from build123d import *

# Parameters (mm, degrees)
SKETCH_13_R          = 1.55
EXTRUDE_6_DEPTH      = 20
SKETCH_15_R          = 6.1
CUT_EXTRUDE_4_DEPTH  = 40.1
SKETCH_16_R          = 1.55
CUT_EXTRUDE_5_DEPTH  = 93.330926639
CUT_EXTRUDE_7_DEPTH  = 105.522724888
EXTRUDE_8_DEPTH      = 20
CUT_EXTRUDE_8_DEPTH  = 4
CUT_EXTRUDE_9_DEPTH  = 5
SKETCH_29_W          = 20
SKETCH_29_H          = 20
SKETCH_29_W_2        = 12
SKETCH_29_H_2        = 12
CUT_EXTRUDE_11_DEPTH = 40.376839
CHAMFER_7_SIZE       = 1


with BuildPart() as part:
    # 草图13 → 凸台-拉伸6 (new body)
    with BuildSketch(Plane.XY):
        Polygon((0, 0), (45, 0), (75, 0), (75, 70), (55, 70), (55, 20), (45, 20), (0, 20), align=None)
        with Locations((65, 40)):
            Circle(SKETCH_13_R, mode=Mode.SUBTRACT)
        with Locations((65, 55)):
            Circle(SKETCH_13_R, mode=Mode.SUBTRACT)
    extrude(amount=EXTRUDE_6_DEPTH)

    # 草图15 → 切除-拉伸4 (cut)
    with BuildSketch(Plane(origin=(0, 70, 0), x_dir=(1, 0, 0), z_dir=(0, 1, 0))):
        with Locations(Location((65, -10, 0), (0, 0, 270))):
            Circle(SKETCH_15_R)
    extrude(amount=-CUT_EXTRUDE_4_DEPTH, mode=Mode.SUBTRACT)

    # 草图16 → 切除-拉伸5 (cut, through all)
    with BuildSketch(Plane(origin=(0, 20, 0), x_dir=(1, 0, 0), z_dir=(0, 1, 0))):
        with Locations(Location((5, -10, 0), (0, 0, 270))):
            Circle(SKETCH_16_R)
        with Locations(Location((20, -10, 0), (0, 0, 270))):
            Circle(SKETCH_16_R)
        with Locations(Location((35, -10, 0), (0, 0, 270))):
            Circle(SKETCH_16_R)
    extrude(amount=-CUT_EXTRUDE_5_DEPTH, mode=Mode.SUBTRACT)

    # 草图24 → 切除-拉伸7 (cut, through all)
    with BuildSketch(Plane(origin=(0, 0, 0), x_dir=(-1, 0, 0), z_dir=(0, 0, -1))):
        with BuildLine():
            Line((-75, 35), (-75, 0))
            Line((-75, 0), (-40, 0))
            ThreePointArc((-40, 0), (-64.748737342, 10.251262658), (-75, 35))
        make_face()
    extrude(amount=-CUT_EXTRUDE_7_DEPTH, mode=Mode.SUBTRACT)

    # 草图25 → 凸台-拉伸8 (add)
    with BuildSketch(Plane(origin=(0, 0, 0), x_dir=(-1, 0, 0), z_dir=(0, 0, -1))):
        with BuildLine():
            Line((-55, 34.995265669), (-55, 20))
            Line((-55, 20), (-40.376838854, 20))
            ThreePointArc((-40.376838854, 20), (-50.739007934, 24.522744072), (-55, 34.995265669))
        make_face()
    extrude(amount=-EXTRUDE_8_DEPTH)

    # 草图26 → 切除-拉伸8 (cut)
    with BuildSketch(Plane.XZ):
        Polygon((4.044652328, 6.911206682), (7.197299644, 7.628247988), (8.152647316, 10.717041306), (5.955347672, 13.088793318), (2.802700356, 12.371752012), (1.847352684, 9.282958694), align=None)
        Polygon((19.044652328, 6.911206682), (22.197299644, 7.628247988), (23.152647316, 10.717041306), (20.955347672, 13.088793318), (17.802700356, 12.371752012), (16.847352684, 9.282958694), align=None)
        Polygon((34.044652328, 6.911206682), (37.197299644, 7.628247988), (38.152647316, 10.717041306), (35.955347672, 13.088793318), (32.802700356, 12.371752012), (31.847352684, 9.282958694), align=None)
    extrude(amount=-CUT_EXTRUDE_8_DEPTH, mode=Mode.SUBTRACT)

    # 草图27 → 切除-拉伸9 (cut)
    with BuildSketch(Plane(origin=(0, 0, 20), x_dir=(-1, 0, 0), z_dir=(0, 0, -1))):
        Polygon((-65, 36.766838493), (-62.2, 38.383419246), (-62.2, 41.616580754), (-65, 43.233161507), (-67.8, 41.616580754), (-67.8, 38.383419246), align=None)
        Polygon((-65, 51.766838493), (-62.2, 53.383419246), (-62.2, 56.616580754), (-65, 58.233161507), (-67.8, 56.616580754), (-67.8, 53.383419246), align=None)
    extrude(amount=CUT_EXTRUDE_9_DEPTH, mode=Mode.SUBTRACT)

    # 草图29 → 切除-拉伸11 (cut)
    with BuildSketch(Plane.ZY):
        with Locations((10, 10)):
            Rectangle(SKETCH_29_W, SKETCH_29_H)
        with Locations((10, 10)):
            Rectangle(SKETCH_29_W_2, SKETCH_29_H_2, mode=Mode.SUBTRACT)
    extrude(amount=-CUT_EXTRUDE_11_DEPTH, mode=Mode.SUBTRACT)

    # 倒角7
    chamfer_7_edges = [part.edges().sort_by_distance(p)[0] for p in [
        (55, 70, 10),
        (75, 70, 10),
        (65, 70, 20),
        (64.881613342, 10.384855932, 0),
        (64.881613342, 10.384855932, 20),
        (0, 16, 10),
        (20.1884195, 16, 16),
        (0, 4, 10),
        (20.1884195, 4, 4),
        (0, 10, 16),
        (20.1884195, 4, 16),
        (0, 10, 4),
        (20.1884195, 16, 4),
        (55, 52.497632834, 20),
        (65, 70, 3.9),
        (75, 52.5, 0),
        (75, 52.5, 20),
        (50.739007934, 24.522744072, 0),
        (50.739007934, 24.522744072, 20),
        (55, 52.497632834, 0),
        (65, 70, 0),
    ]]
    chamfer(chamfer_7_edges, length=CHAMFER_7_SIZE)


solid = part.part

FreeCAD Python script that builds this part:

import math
import FreeCAD as App
import Part
import Sketcher
Q = App.Units.Quantity


def edges_at(feature, points):
    """Names of the edges that pass closest to the given points."""
    edges = feature.Shape.Edges
    near = lambda p: min(range(len(edges)), key=lambda i: edges[i].distToShape(Part.Vertex(*p))[0])
    return sorted({f"Edge{near(p) + 1}" for p in points})


def add_polygon(sketch, points):
    """Adds a closed chain of lines whose ends are joined by coincident constraints."""
    first, n = sketch.GeometryCount, len(points)
    for a, b in zip(points, points[1:] + points[:1]):
        sketch.addGeometry(Part.LineSegment(App.Vector(*a, 0), App.Vector(*b, 0)), False)
    for i in range(n):
        sketch.addConstraint(Sketcher.Constraint("Coincident", first + i, 2, first + (i + 1) % n, 1))

doc = App.newDocument("Part")
body = doc.addObject("PartDesign::Body", "Body")

# Sketch on XY plane
sketch1 = body.newObject("Sketcher::SketchObject", "Sketch")
sketch1.AttachmentSupport = (doc.getObject("XY_Plane"), [""])
sketch1.MapMode = "FlatFace"
add_polygon(sketch1, [(0, 0), (75, 0), (75, 70), (55, 70), (55, 20), (0, 20)])  # lines 0-5
sketch1.addGeometry(Part.Circle(App.Vector(65, 40, 0), App.Vector(0, 0, 1), 1.6), False)  # 6
sketch1.addGeometry(Part.Circle(App.Vector(65, 55, 0), App.Vector(0, 0, 1), 1.6), False)  # 7
sketch1.addConstraint([
    Sketcher.Constraint("Horizontal", 0),
    Sketcher.Constraint("Vertical", 1),
    Sketcher.Constraint("Horizontal", 2),
    Sketcher.Constraint("Vertical", 3),
    Sketcher.Constraint("Horizontal", 4),
    Sketcher.Constraint("Vertical", 5),
    Sketcher.Constraint("Coincident", 5, 2, -1, 1),
    Sketcher.Constraint("Equal", 6, 7),
    Sketcher.Constraint("Vertical", 6, 3, 7, 3),
    Sketcher.Constraint("Equal", 2, 5),
    Sketcher.Constraint("Diameter", 6, Q("3.1 mm")),
    Sketcher.Constraint("DistanceX", 0, 1, 0, 2, Q("75 mm")),
    Sketcher.Constraint("DistanceX", 2, 2, 2, 1, Q("20 mm")),
    Sketcher.Constraint("DistanceY", 1, 1, 1, 2, Q("70 mm")),
    Sketcher.Constraint("DistanceX", -1, 1, 6, 3, Q("65 mm")),
    Sketcher.Constraint("DistanceY", -1, 1, 6, 3, Q("40 mm")),
    Sketcher.Constraint("DistanceY", -1, 1, 7, 3, Q("55 mm")),
])
pad1 = body.newObject("PartDesign::Pad", "Pad")
pad1.Profile = sketch1
pad1.Length = 20

# Sketch on XZ plane
sketch2 = body.newObject("Sketcher::SketchObject", "Sketch001")
sketch2.AttachmentSupport = (doc.getObject("XZ_Plane"), [""])
sketch2.MapMode = "FlatFace"
sketch2.AttachmentOffset = App.Placement(App.Vector(0, 0, -70), App.Rotation())
sketch2.addGeometry(Part.Circle(App.Vector(65, 10, 0), App.Vector(0, 0, 1), 6), False)
sketch2.addConstraint([
    Sketcher.Constraint("Diameter", 0, Q("12.2 mm")),
    Sketcher.Constraint("DistanceX", -1, 1, 0, 3, Q("65 mm")),
    Sketcher.Constraint("DistanceY", -1, 1, 0, 3, Q("10 mm")),
])
pocket1 = body.newObject("PartDesign::Pocket", "Pocket")
pocket1.Profile = sketch2
pocket1.Length = 40.1
pocket1.Reversed = True

# Sketch on XZ plane
sketch3 = body.newObject("Sketcher::SketchObject", "Sketch002")
sketch3.AttachmentSupport = (doc.getObject("XZ_Plane"), [""])
sketch3.MapMode = "FlatFace"
sketch3.AttachmentOffset = App.Placement(App.Vector(0, 0, -20), App.Rotation())
sketch3.addGeometry([
    Part.Circle(App.Vector(5, 10, 0), App.Vector(0, 0, 1), 1.6),
    Part.Circle(App.Vector(20, 10, 0), App.Vector(0, 0, 1), 1.6),
    Part.Circle(App.Vector(35, 10, 0), App.Vector(0, 0, 1), 1.6),
], False)
sketch3.addConstraint([
    Sketcher.Constraint("Equal", 0, 1),
    Sketcher.Constraint("Equal", 1, 2),
    Sketcher.Constraint("Horizontal", 0, 3, 1, 3),
    Sketcher.Constraint("Horizontal", 1, 3, 2, 3),
    Sketcher.Constraint("Diameter", 0, Q("3.1 mm")),
    Sketcher.Constraint("DistanceX", -1, 1, 0, 3, Q("5 mm")),
    Sketcher.Constraint("DistanceY", -1, 1, 0, 3, Q("10 mm")),
    Sketcher.Constraint("DistanceX", -1, 1, 1, 3, Q("20 mm")),
    Sketcher.Constraint("DistanceX", -1, 1, 2, 3, Q("35 mm")),
])
pocket2 = body.newObject("PartDesign::Pocket", "Pocket001")
pocket2.Profile = sketch3
pocket2.Type = "ThroughAll"
pocket2.Reversed = True

# Sketch on XY plane
sketch4 = body.newObject("Sketcher::SketchObject", "Sketch003")
sketch4.AttachmentSupport = (doc.getObject("XY_Plane"), [""])
sketch4.MapMode = "FlatFace"
sketch4.addGeometry([
    Part.LineSegment(App.Vector(75, 35, 0), App.Vector(75, 0, 0)),
    Part.LineSegment(App.Vector(75, 0, 0), App.Vector(40, 0, 0)),
    Part.ArcOfCircle(Part.Circle(App.Vector(40, 35, 0), App.Vector(0, 0, 1), 35), math.radians(-90), math.radians(0)),
], False)
sketch4.addConstraint([
    Sketcher.Constraint("Coincident", 0, 2, 1, 1),
    Sketcher.Constraint("Tangent", 1, 2, 2, 1),
    Sketcher.Constraint("Tangent", 2, 2, 0, 1),
    Sketcher.Constraint("Vertical", 0),
    Sketcher.Constraint("Horizontal", 1),
    Sketcher.Constraint("PointOnObject", 0, 2, -1),
    Sketcher.Constraint("Radius", 2, Q("35 mm")),
    Sketcher.Constraint("DistanceX", -1, 1, 2, 3, Q("40 mm")),
])
pocket3 = body.newObject("PartDesign::Pocket", "Pocket002")
pocket3.Profile = sketch4
pocket3.Type = "ThroughAll"
pocket3.Reversed = True

# Sketch on XY plane
sketch5 = body.newObject("Sketcher::SketchObject", "Sketch004")
sketch5.AttachmentSupport = (doc.getObject("XY_Plane"), [""])
sketch5.MapMode = "FlatFace"
sketch5.addGeometry([
    Part.LineSegment(App.Vector(55, 35, 0), App.Vector(55, 20, 0)),
    Part.LineSegment(App.Vector(55, 20, 0), App.Vector(40, 20, 0)),
    Part.ArcOfCircle(Part.Circle(App.Vector(40, 35, 0), App.Vector(0, 0, 1), 15), math.radians(-89), math.radians(0)),
], False)
sketch5.addConstraint([
    Sketcher.Constraint("Coincident", 0, 2, 1, 1),
    Sketcher.Constraint("Coincident", 1, 2, 2, 1),
    Sketcher.Constraint("Tangent", 2, 2, 0, 1),
    Sketcher.Constraint("Vertical", 0),
    Sketcher.Constraint("Horizontal", 1),
    Sketcher.Constraint("Radius", 2, Q("15 mm")),
    Sketcher.Constraint("DistanceX", -1, 1, 2, 3, Q("40 mm")),
    Sketcher.Constraint("DistanceY", -1, 1, 0, 2, Q("20 mm")),
    Sketcher.Constraint("DistanceX", 1, 2, 1, 1, Q("14.623161 mm")),
])
pad2 = body.newObject("PartDesign::Pad", "Pad001")
pad2.Profile = sketch5
pad2.Length = 20

# Sketch on XZ plane
sketch6 = body.newObject("Sketcher::SketchObject", "Sketch005")
sketch6.AttachmentSupport = (doc.getObject("XZ_Plane"), [""])
sketch6.MapMode = "FlatFace"
add_polygon(sketch6, [(4, 6.9), (7.2, 7.6), (8.2, 10.7), (6, 13.1), (2.8, 12.4), (1.8, 9.3)])  # lines 0-5
add_polygon(sketch6, [(19, 6.9), (22.2, 7.6), (23.2, 10.7), (21, 13.1), (17.8, 12.4), (16.8, 9.3)])  # lines 6-11
add_polygon(sketch6, [(34, 6.9), (37.2, 7.6), (38.2, 10.7), (36, 13.1), (32.8, 12.4), (31.8, 9.3)])  # lines 12-17
sketch6.addConstraint([
    Sketcher.Constraint("Parallel", 0, 3),
    Sketcher.Constraint("Parallel", 1, 4),
    Sketcher.Constraint("Parallel", 2, 5),
    Sketcher.Constraint("Parallel", 3, 6),
    Sketcher.Constraint("Parallel", 4, 7),
    Sketcher.Constraint("Parallel", 5, 8),
    Sketcher.Constraint("Parallel", 6, 9),
    Sketcher.Constraint("Parallel", 7, 10),
    Sketcher.Constraint("Parallel", 8, 11),
    Sketcher.Constraint("Parallel", 9, 12),
    Sketcher.Constraint("Parallel", 10, 13),
    Sketcher.Constraint("Parallel", 11, 14),
    Sketcher.Constraint("Parallel", 12, 15),
    Sketcher.Constraint("Parallel", 13, 16),
    Sketcher.Constraint("Parallel", 14, 17),
    Sketcher.Constraint("Horizontal", 0, 2, 6, 2),
    Sketcher.Constraint("Horizontal", 1, 2, 7, 2),
    Sketcher.Constraint("Horizontal", 2, 2, 8, 2),
    Sketcher.Constraint("Horizontal", 3, 2, 9, 2),
    Sketcher.Constraint("Horizontal", 4, 2, 10, 2),
    Sketcher.Constraint("Horizontal", 6, 2, 12, 2),
    Sketcher.Constraint("Horizontal", 7, 2, 13, 2),
    Sketcher.Constraint("Horizontal", 8, 2, 14, 2),
    Sketcher.Constraint("Horizontal", 9, 2, 15, 2),
    Sketcher.Constraint("Horizontal", 10, 2, 16, 2),
    Sketcher.Constraint("Equal", 0, 1),
    Sketcher.Constraint("Equal", 1, 2),
    Sketcher.Constraint("Equal", 2, 3),
    Sketcher.Constraint("DistanceX", 0, 2, 6, 2, Q("15 mm")),
    Sketcher.Constraint("DistanceX", 6, 2, 12, 2, Q("15 mm")),
    Sketcher.Constraint("DistanceX", -1, 1, 0, 2, Q("7.1973 mm")),
    Sketcher.Constraint("DistanceX", -1, 1, 3, 2, Q("2.8027 mm")),
    Sketcher.Constraint("DistanceX", 2, 2, 1, 2, Q("2.1973 mm")),
    Sketcher.Constraint("Distance", 0, Q("3.233162 mm")),
    Sketcher.Constraint("DistanceY", -1, 1, 1, 2, Q("10.717041 mm")),
    Sketcher.Constraint("DistanceY", -1, 1, 4, 2, Q("9.282959 mm")),
])
pocket4 = body.newObject("PartDesign::Pocket", "Pocket003")
pocket4.Profile = sketch6
pocket4.Length = 4

# Sketch on XY plane
sketch7 = body.newObject("Sketcher::SketchObject", "Sketch006")
sketch7.AttachmentSupport = (doc.getObject("XY_Plane"), [""])
sketch7.MapMode = "FlatFace"
sketch7.AttachmentOffset = App.Placement(App.Vector(0, 0, 20), App.Rotation())
add_polygon(sketch7, [(65, 36.8), (62.2, 38.4), (62.2, 41.6), (65, 43.2), (67.8, 41.6), (67.8, 38.4)])  # lines 0-5
add_polygon(sketch7, [(65, 51.8), (62.2, 53.4), (62.2, 56.6), (65, 58.2), (67.8, 56.6), (67.8, 53.4)])  # lines 6-11
sketch7.addConstraint([
    Sketcher.Constraint("Vertical", 1),
    Sketcher.Constraint("Vertical", 4),
    Sketcher.Constraint("Vertical", 7),
    Sketcher.Constraint("Vertical", 10),
    Sketcher.Constraint("Parallel", 0, 3),
    Sketcher.Constraint("Parallel", 2, 5),
    Sketcher.Constraint("Parallel", 3, 6),
    Sketcher.Constraint("Parallel", 5, 8),
    Sketcher.Constraint("Parallel", 6, 9),
    Sketcher.Constraint("Parallel", 8, 11),
    Sketcher.Constraint("Horizontal", 1, 2, 3, 2),
    Sketcher.Constraint("Horizontal", 0, 2, 4, 2),
    Sketcher.Constraint("Horizontal", 7, 2, 9, 2),
    Sketcher.Constraint("Horizontal", 6, 2, 10, 2),
    Sketcher.Constraint("Vertical", 2, 2, 5, 2),
    Sketcher.Constraint("Vertical", 1, 2, 6, 2),
    Sketcher.Constraint("Vertical", 5, 2, 8, 2),
    Sketcher.Constraint("Equal", 4, 7),
    Sketcher.Constraint("Angle", 0, Q("150 deg")),
    Sketcher.Constraint("DistanceX", -1, 1, 2, 2, Q("65 mm")),
    Sketcher.Constraint("DistanceY", 0, 2, 6, 2, Q("15 mm")),
    Sketcher.Constraint("DistanceX", -1, 1, 0, 2, Q("62.2 mm")),
    Sketcher.Constraint("DistanceY", 1, 1, 1, 2, Q("3.233162 mm")),
    Sketcher.Constraint("DistanceY", -1, 1, 0, 2, Q("38.383419 mm")),
])
pocket5 = body.newObject("PartDesign::Pocket", "Pocket004")
pocket5.Profile = sketch7
pocket5.Length = 5

# Sketch on YZ plane
sketch8 = body.newObject("Sketcher::SketchObject", "Sketch007")
sketch8.AttachmentSupport = (doc.getObject("YZ_Plane"), [""])
sketch8.MapMode = "FlatFace"
add_polygon(sketch8, [(20, 0), (0, 0), (0, 20), (20, 20)])  # lines 0-3
add_polygon(sketch8, [(4, 16), (4, 4), (16, 4), (16, 16)])  # lines 4-7
sketch8.addConstraint([
    Sketcher.Constraint("Horizontal", 0),
    Sketcher.Constraint("Vertical", 1),
    Sketcher.Constraint("Horizontal", 2),
    Sketcher.Constraint("Vertical", 3),
    Sketcher.Constraint("Vertical", 4),
    Sketcher.Constraint("Horizontal", 5),
    Sketcher.Constraint("Vertical", 6),
    Sketcher.Constraint("Horizontal", 7),
    Sketcher.Constraint("Coincident", 0, 2, -1, 1),
    Sketcher.Constraint("Equal", 2, 1),
    Sketcher.Constraint("Equal", 7, 4),
    Sketcher.Constraint("DistanceX", 0, 2, 0, 1, Q("20 mm")),
    Sketcher.Constraint("DistanceX", 5, 1, 5, 2, Q("12 mm")),
    Sketcher.Constraint("DistanceX", -1, 1, 4, 2, Q("4 mm")),
    Sketcher.Constraint("DistanceY", -1, 1, 4, 2, Q("4 mm")),
])
pocket6 = body.newObject("PartDesign::Pocket", "Pocket005")
pocket6.Profile = sketch8
pocket6.Length = 40.376839
pocket6.Reversed = True
doc.recompute()

chamfer = body.newObject("PartDesign::Chamfer", "Chamfer")
chamfer.Base = (pocket6, edges_at(pocket6, [
    (55, 70, 10),
    (75, 70, 10),
    (65, 70, 20),
    (64.882, 10.385, 0),
    (64.882, 10.385, 20),
    (0, 16, 10),
    (20.188, 16, 16),
    (0, 4, 10),
    (20.188, 4, 4),
    (0, 10, 16),
    (20.188, 4, 16),
    (0, 10, 4),
    (20.188, 16, 4),
    (55, 52.498, 20),
    (65, 70, 3.9),
    (75, 52.5, 0),
    (75, 52.5, 20),
    (50.739, 24.523, 0),
    (50.739, 24.523, 20),
    (55, 52.498, 0),
    (65, 70, 0),
]))
chamfer.Size = 1

doc.recompute()
